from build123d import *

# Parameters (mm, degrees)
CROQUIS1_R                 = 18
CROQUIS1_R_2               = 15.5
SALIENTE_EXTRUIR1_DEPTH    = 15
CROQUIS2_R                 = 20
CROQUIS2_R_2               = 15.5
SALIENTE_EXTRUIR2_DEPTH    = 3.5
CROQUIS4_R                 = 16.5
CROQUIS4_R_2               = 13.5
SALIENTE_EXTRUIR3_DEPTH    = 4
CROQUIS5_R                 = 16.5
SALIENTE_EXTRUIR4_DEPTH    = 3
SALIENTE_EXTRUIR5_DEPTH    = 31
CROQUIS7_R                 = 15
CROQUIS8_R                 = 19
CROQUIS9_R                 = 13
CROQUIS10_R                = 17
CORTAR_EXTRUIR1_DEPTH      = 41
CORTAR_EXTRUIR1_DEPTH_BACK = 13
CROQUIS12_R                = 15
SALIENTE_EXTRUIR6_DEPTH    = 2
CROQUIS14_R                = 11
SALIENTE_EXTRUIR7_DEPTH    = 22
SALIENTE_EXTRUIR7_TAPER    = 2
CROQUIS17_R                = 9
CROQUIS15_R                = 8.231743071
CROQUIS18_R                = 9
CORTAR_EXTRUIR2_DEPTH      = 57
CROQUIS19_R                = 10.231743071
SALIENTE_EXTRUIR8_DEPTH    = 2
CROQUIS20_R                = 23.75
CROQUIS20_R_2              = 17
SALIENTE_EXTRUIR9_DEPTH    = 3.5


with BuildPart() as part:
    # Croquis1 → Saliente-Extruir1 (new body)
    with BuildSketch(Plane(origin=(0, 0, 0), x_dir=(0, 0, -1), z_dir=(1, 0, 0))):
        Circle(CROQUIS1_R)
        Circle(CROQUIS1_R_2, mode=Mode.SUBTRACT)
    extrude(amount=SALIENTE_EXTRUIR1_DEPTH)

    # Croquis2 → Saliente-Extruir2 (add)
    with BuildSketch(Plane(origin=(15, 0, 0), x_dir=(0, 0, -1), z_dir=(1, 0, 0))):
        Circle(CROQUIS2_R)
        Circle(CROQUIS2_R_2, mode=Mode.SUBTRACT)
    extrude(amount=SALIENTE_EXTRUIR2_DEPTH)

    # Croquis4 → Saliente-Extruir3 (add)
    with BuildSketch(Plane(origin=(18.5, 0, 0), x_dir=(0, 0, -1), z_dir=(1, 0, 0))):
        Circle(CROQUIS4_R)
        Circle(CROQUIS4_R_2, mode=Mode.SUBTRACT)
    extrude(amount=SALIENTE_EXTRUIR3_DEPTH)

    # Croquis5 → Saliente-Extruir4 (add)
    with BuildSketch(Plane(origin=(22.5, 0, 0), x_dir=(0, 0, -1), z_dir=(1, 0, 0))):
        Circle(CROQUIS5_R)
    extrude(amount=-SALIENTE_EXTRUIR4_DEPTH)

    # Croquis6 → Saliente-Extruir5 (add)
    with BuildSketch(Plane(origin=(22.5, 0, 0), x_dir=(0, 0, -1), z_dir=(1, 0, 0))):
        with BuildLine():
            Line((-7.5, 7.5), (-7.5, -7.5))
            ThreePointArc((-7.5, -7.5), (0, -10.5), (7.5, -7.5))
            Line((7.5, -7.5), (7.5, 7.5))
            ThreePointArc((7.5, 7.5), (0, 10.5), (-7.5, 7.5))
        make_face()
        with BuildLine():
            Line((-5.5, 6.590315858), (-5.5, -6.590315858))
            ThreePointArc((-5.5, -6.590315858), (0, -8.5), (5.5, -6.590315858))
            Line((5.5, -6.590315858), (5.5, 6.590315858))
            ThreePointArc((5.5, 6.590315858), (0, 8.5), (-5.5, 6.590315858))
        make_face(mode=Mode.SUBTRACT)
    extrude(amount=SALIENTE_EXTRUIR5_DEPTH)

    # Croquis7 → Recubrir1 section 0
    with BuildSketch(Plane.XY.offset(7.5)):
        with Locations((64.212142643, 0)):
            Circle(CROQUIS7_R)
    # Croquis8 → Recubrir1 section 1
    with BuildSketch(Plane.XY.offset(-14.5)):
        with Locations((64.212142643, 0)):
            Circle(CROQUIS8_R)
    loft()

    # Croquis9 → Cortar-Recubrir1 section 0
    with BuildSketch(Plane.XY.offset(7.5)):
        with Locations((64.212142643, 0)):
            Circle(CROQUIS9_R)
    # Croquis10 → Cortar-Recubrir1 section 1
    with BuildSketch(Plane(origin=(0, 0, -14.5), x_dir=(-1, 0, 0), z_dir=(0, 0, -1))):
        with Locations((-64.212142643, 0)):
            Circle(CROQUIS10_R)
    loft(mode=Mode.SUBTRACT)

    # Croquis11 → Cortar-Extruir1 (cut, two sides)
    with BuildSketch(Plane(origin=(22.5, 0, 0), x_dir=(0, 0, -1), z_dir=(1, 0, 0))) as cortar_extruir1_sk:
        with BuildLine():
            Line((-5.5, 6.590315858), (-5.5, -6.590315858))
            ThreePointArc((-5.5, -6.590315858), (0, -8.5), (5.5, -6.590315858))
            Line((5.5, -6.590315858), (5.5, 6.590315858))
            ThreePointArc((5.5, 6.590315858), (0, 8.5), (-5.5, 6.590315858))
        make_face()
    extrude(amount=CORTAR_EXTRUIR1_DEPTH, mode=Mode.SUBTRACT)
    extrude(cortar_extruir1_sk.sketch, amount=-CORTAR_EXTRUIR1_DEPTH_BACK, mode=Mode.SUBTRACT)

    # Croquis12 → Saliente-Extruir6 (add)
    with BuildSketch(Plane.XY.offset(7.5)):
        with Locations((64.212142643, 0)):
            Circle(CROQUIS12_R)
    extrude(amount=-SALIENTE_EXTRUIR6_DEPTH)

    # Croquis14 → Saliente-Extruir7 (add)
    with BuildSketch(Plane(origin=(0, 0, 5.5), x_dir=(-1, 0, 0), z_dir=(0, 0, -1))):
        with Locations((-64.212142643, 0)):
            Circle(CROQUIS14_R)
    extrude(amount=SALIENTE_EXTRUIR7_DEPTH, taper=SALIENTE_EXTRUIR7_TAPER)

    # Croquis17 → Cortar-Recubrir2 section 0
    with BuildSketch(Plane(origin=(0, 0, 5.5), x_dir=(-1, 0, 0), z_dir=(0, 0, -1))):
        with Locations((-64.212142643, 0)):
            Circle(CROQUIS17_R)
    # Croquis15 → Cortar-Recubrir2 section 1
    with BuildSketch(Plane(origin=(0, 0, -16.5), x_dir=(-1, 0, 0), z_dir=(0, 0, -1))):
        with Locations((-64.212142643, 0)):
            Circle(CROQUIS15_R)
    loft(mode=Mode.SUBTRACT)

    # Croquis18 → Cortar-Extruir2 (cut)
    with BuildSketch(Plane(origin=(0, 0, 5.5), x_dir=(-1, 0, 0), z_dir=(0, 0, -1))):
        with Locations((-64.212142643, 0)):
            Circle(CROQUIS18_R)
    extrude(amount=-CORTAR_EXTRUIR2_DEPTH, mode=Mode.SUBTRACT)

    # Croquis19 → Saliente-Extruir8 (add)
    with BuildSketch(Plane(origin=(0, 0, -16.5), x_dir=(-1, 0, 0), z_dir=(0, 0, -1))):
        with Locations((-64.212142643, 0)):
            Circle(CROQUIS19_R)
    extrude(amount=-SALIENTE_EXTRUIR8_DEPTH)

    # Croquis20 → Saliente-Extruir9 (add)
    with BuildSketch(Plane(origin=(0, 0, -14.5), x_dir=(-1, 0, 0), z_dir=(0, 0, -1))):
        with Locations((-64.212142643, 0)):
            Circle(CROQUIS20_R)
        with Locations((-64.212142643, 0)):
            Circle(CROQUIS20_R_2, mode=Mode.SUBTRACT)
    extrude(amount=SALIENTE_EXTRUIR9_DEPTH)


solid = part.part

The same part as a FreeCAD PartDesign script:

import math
import FreeCAD as App
import Part
import Sketcher
from FreeCAD import Vector

doc = App.newDocument("Part")
body = doc.addObject("PartDesign::Body", "Body")

sketch1 = body.newObject("Sketcher::SketchObject", "Sketch")
sketch1.AttachmentSupport = (doc.getObject("YZ_Plane"), [""])
sketch1.MapMode = "FlatFace"
sketch1.addGeometry(Part.Circle(Vector(0, 0, 0), Vector(0, 0, 1), 18), False)
sketch1.addGeometry(Part.Circle(Vector(0, 0, 0), Vector(0, 0, 1), 16), False)
sketch1.addConstraint(Sketcher.Constraint("Coincident", 0, 3, -1, 1))
sketch1.addConstraint(Sketcher.Constraint("Coincident", 1, 3, -1, 1))
sketch1.addConstraint(Sketcher.Constraint("Diameter", 0, 36.0))
sketch1.addConstraint(Sketcher.Constraint("Diameter", 1, 31.0))
pad1 = body.newObject("PartDesign::Pad", "Pad")
pad1.Profile = sketch1
pad1.Length = 15

sketch2 = body.newObject("Sketcher::SketchObject", "Sketch001")
sketch2.AttachmentSupport = (doc.getObject("YZ_Plane"), [""])
sketch2.MapMode = "FlatFace"
sketch2.AttachmentOffset = App.Placement(Vector(0, 0, 15), App.Rotation())
sketch2.addGeometry(Part.Circle(Vector(0, 0, 0), Vector(0, 0, 1), 20), False)
sketch2.addGeometry(Part.Circle(Vector(0, 0, 0), Vector(0, 0, 1), 16), False)
sketch2.addConstraint(Sketcher.Constraint("Coincident", 0, 3, -1, 1))
sketch2.addConstraint(Sketcher.Constraint("Coincident", 1, 3, -1, 1))
sketch2.addConstraint(Sketcher.Constraint("Diameter", 0, 40.0))
sketch2.addConstraint(Sketcher.Constraint("Diameter", 1, 31.0))
pad2 = body.newObject("PartDesign::Pad", "Pad001")
pad2.Profile = sketch2
pad2.Length = 3.5

sketch3 = body.newObject("Sketcher::SketchObject", "Sketch002")
sketch3.AttachmentSupport = (doc.getObject("YZ_Plane"), [""])
sketch3.MapMode = "FlatFace"
sketch3.AttachmentOffset = App.Placement(Vector(0, 0, 18.5), App.Rotation())
sketch3.addGeometry(Part.Circle(Vector(0, 0, 0), Vector(0, 0, 1), 16), False)
sketch3.addGeometry(Part.Circle(Vector(0, 0, 0), Vector(0, 0, 1), 14), False)
sketch3.addConstraint(Sketcher.Constraint("Coincident", 0, 3, -1, 1))
sketch3.addConstraint(Sketcher.Constraint("Coincident", 1, 3, -1, 1))
sketch3.addConstraint(Sketcher.Constraint("Diameter", 0, 33.0))
sketch3.addConstraint(Sketcher.Constraint("Diameter", 1, 27.0))
pad3 = body.newObject("PartDesign::Pad", "Pad002")
pad3.Profile = sketch3
pad3.Length = 4

sketch4 = body.newObject("Sketcher::SketchObject", "Sketch003")
sketch4.AttachmentSupport = (doc.getObject("YZ_Plane"), [""])
sketch4.MapMode = "FlatFace"
sketch4.AttachmentOffset = App.Placement(Vector(0, 0, 22.5), App.Rotation())
sketch4.addGeometry(Part.Circle(Vector(0, 0, 0), Vector(0, 0, 1), 16), False)
sketch4.addConstraint(Sketcher.Constraint("Coincident", 0, 3, -1, 1))
sketch4.addConstraint(Sketcher.Constraint("Diameter", 0, 33.0))
pad4 = body.newObject("PartDesign::Pad", "Pad003")
pad4.Profile = sketch4
pad4.Length = 3
pad4.Reversed = True

sketch5 = body.newObject("Sketcher::SketchObject", "Sketch004")
sketch5.AttachmentSupport = (doc.getObject("YZ_Plane"), [""])
sketch5.MapMode = "FlatFace"
sketch5.AttachmentOffset = App.Placement(Vector(0, 0, 22.5), App.Rotation())
sketch5.addGeometry(Part.LineSegment(Vector(8, 8, 0), Vector(-8, 8, 0)), False)
sketch5.addGeometry(Part.ArcOfCircle(Part.Circle(Vector(0, 0, 0), Vector(0, 0, 1), 11), math.radians(136), math.radians(224)), False)
sketch5.addGeometry(Part.LineSegment(Vector(-8, -8, 0), Vector(8, -8, 0)), False)
sketch5.addGeometry(Part.ArcOfCircle(Part.Circle(Vector(0, 0, 0), Vector(0, 0, 1), 11), math.radians(-44), math.radians(44)), False)
sketch5.addGeometry(Part.LineSegment(Vector(-7, 6, 0), Vector(7, 6, 0)), False)
sketch5.addGeometry(Part.ArcOfCircle(Part.Circle(Vector(0, 0, 0), Vector(0, 0, 1), 9), math.radians(-38), math.radians(38)), False)
sketch5.addGeometry(Part.LineSegment(Vector(7, -6, 0), Vector(-7, -6, 0)), False)
sketch5.addGeometry(Part.ArcOfCircle(Part.Circle(Vector(0, 0, 0), Vector(0, 0, 1), 9), math.radians(142), math.radians(218)), False)
sketch5.addConstraint(Sketcher.Constraint("Coincident", 0, 2, 1, 1))
sketch5.addConstraint(Sketcher.Constraint("Coincident", 1, 2, 2, 1))
sketch5.addConstraint(Sketcher.Constraint("Coincident", 2, 2, 3, 1))
sketch5.addConstraint(Sketcher.Constraint("Coincident", 3, 2, 0, 1))
sketch5.addConstraint(Sketcher.Constraint("Coincident", 4, 2, 5, 2))
sketch5.addConstraint(Sketcher.Constraint("Coincident", 5, 1, 6, 1))
sketch5.addConstraint(Sketcher.Constraint("Coincident", 6, 2, 7, 2))
sketch5.addConstraint(Sketcher.Constraint("Coincident", 7, 1, 4, 1))
sketch5.addConstraint(Sketcher.Constraint("Horizontal", 0))
sketch5.addConstraint(Sketcher.Constraint("Horizontal", 2))
sketch5.addConstraint(Sketcher.Constraint("Horizontal", 4))
sketch5.addConstraint(Sketcher.Constraint("Horizontal", 6))
sketch5.addConstraint(Sketcher.Constraint("Coincident", 5, 3, 3, 3))
sketch5.addConstraint(Sketcher.Constraint("Coincident", 7, 3, 1, 3))
sketch5.addConstraint(Sketcher.Constraint("Equal", 1, 3))
sketch5.addConstraint(Sketcher.Constraint("Equal", 5, 7))
sketch5.addConstraint(Sketcher.Constraint("Symmetric", 1, 3, 3, 3, -1, 1))
sketch5.addConstraint(Sketcher.Constraint("Symmetric", 0, 2, 1, 2, -1))
sketch5.addConstraint(Sketcher.Constraint("Vertical", 4, 2, 5, 1))
sketch5.addConstraint(Sketcher.Constraint("DistanceX", 0, 2, 0, 1, 15.0))
sketch5.addConstraint(Sketcher.Constraint("Radius", 1, 10.875))
sketch5.addConstraint(Sketcher.Constraint("Radius", 5, 8.875))
sketch5.addConstraint(Sketcher.Constraint("DistanceY", 1, 2, 0, 2, 15.0))
sketch5.addConstraint(Sketcher.Constraint("DistanceY", 4, 2, 3, 2, 2.0))
pad5 = body.newObject("PartDesign::Pad", "Pad004")
pad5.Profile = sketch5
pad5.Length = 31

sketch6 = body.newObject("Sketcher::SketchObject", "Sketch005")
sketch6.AttachmentSupport = (doc.getObject("XY_Plane"), [""])
sketch6.MapMode = "FlatFace"
sketch6.AttachmentOffset = App.Placement(Vector(0, 0, 7.5), App.Rotation())
sketch6.addGeometry(Part.Circle(Vector(64, 0, 0), Vector(0, 0, 1), 15), False)
sketch6.addConstraint(Sketcher.Constraint("PointOnObject", 0, 3, -1))
sketch6.addConstraint(Sketcher.Constraint("Diameter", 0, 30.0))
sketch6.addConstraint(Sketcher.Constraint("DistanceX", -1, 1, 0, 3, 64.212143))

sketch7 = body.newObject("Sketcher::SketchObject", "Sketch006")
sketch7.AttachmentSupport = (doc.getObject("XY_Plane"), [""])
sketch7.MapMode = "FlatFace"
sketch7.AttachmentOffset = App.Placement(Vector(0, 0, -14.5), App.Rotation())
sketch7.addGeometry(Part.Circle(Vector(64, 0, 0), Vector(0, 0, 1), 19), False)
sketch7.addConstraint(Sketcher.Constraint("PointOnObject", 0, 3, -1))
sketch7.addConstraint(Sketcher.Constraint("Diameter", 0, 38.0))
sketch7.addConstraint(Sketcher.Constraint("DistanceX", -1, 1, 0, 3, 64.212143))

additiveloft = body.newObject("PartDesign::AdditiveLoft", "AdditiveLoft")
additiveloft.Profile = sketch6
additiveloft.Sections = [sketch7]

sketch8 = body.newObject("Sketcher::SketchObject", "Sketch007")
sketch8.AttachmentSupport = (doc.getObject("XY_Plane"), [""])
sketch8.MapMode = "FlatFace"
sketch8.AttachmentOffset = App.Placement(Vector(0, 0, 7.5), App.Rotation())
sketch8.addGeometry(Part.Circle(Vector(64, 0, 0), Vector(0, 0, 1), 13), False)
sketch8.addConstraint(Sketcher.Constraint("PointOnObject", 0, 3, -1))
sketch8.addConstraint(Sketcher.Constraint("Diameter", 0, 26.0))
sketch8.addConstraint(Sketcher.Constraint("DistanceX", -1, 1, 0, 3, 64.212143))

sketch9 = body.newObject("Sketcher::SketchObject", "Sketch008")
sketch9.AttachmentSupport = (doc.getObject("XY_Plane"), [""])
sketch9.MapMode = "FlatFace"
sketch9.AttachmentOffset = App.Placement(Vector(0, 0, -14.5), App.Rotation())
sketch9.addGeometry(Part.Circle(Vector(64, 0, 0), Vector(0, 0, 1), 17), False)
sketch9.addConstraint(Sketcher.Constraint("PointOnObject", 0, 3, -1))
sketch9.addConstraint(Sketcher.Constraint("Diameter", 0, 34.0))
sketch9.addConstraint(Sketcher.Constraint("DistanceX", -1, 1, 0, 3, 64.212143))

subtractiveloft = body.newObject("PartDesign::SubtractiveLoft", "SubtractiveLoft")
subtractiveloft.Profile = sketch8
subtractiveloft.Sections = [sketch9]

sketch10 = body.newObject("Sketcher::SketchObject", "Sketch009")
sketch10.AttachmentSupport = (doc.getObject("YZ_Plane"), [""])
sketch10.MapMode = "FlatFace"
sketch10.AttachmentOffset = App.Placement(Vector(0, 0, 22.5), App.Rotation())
sketch10.addGeometry(Part.LineSegment(Vector(7, 6, 0), Vector(-7, 6, 0)), False)
sketch10.addGeometry(Part.ArcOfCircle(Part.Circle(Vector(0, 0, 0), Vector(0, 0, 1), 9), math.radians(142), math.radians(218)), False)
sketch10.addGeometry(Part.LineSegment(Vector(-7, -6, 0), Vector(7, -6, 0)), False)
sketch10.addGeometry(Part.ArcOfCircle(Part.Circle(Vector(0, 0, 0), Vector(0, 0, 1), 9), math.radians(-38), math.radians(38)), False)
sketch10.addConstraint(Sketcher.Constraint("Coincident", 0, 2, 1, 1))
sketch10.addConstraint(Sketcher.Constraint("Coincident", 1, 2, 2, 1))
sketch10.addConstraint(Sketcher.Constraint("Coincident", 2, 2, 3, 1))
sketch10.addConstraint(Sketcher.Constraint("Coincident", 3, 2, 0, 1))
sketch10.addConstraint(Sketcher.Constraint("Horizontal", 0))
sketch10.addConstraint(Sketcher.Constraint("Horizontal", 2))
sketch10.addConstraint(Sketcher.Constraint("Equal", 1, 3))
sketch10.addConstraint(Sketcher.Constraint("Symmetric", 1, 3, 3, 3, -1, 1))
sketch10.addConstraint(Sketcher.Constraint("Symmetric", 0, 2, 1, 2, -1))
sketch10.addConstraint(Sketcher.Constraint("Radius", 1, 8.875))
sketch10.addConstraint(Sketcher.Constraint("DistanceY", 1, 2, 0, 2, 11.0))
sketch10.addConstraint(Sketcher.Constraint("DistanceX", 3, 3, 1, 3, 0.75))
pocket1 = body.newObject("PartDesign::Pocket", "Pocket")
pocket1.Profile = sketch10
pocket1.Type = "TwoLengths"
pocket1.Length = 41
pocket1.Length2 = 13
pocket1.Reversed = True

sketch11 = body.newObject("Sketcher::SketchObject", "Sketch010")
sketch11.AttachmentSupport = (doc.getObject("XY_Plane"), [""])
sketch11.MapMode = "FlatFace"
sketch11.AttachmentOffset = App.Placement(Vector(0, 0, 7.5), App.Rotation())
sketch11.addGeometry(Part.Circle(Vector(64, 0, 0), Vector(0, 0, 1), 15), False)
sketch11.addConstraint(Sketcher.Constraint("PointOnObject", 0, 3, -1))
sketch11.addConstraint(Sketcher.Constraint("Diameter", 0, 30.0))
sketch11.addConstraint(Sketcher.Constraint("DistanceX", -1, 1, 0, 3, 64.212143))
pad6 = body.newObject("PartDesign::Pad", "Pad005")
pad6.Profile = sketch11
pad6.Length = 2
pad6.Reversed = True

sketch12 = body.newObject("Sketcher::SketchObject", "Sketch011")
sketch12.AttachmentSupport = (doc.getObject("XY_Plane"), [""])
sketch12.MapMode = "FlatFace"
sketch12.AttachmentOffset = App.Placement(Vector(0, 0, 5.5), App.Rotation())
sketch12.addGeometry(Part.Circle(Vector(64, 0, 0), Vector(0, 0, 1), 11), False)
sketch12.addConstraint(Sketcher.Constraint("PointOnObject", 0, 3, -1))
sketch12.addConstraint(Sketcher.Constraint("Diameter", 0, 22.0))
sketch12.addConstraint(Sketcher.Constraint("DistanceX", -1, 1, 0, 3, 64.212143))
pad7 = body.newObject("PartDesign::Pad", "Pad006")
pad7.Profile = sketch12
pad7.Length = 22
pad7.Reversed = True
pad7.TaperAngle = -2

sketch13 = body.newObject("Sketcher::SketchObject", "Sketch012")
sketch13.AttachmentSupport = (doc.getObject("XY_Plane"), [""])
sketch13.MapMode = "FlatFace"
sketch13.AttachmentOffset = App.Placement(Vector(0, 0, 5.5), App.Rotation())
sketch13.addGeometry(Part.Circle(Vector(64, 0, 0), Vector(0, 0, 1), 9), False)
sketch13.addConstraint(Sketcher.Constraint("PointOnObject", 0, 3, -1))
sketch13.addConstraint(Sketcher.Constraint("Diameter", 0, 18.0))
sketch13.addConstraint(Sketcher.Constraint("DistanceX", -1, 1, 0, 3, 64.212143))

sketch14 = body.newObject("Sketcher::SketchObject", "Sketch013")
sketch14.AttachmentSupport = (doc.getObject("XY_Plane"), [""])
sketch14.MapMode = "FlatFace"
sketch14.AttachmentOffset = App.Placement(Vector(0, 0, -16.5), App.Rotation())
sketch14.addGeometry(Part.Circle(Vector(64, 0, 0), Vector(0, 0, 1), 8), False)
sketch14.addConstraint(Sketcher.Constraint("PointOnObject", 0, 3, -1))
sketch14.addConstraint(Sketcher.Constraint("Diameter", 0, 16.463486))
sketch14.addConstraint(Sketcher.Constraint("DistanceX", -1, 1, 0, 3, 64.212143))

subtractiveloft2 = body.newObject("PartDesign::SubtractiveLoft", "SubtractiveLoft001")
subtractiveloft2.Profile = sketch13
subtractiveloft2.Sections = [sketch14]

sketch15 = body.newObject("Sketcher::SketchObject", "Sketch014")
sketch15.AttachmentSupport = (doc.getObject("XY_Plane"), [""])
sketch15.MapMode = "FlatFace"
sketch15.AttachmentOffset = App.Placement(Vector(0, 0, 5.5), App.Rotation())
sketch15.addGeometry(Part.Circle(Vector(64, 0, 0), Vector(0, 0, 1), 9), False)
sketch15.addConstraint(Sketcher.Constraint("PointOnObject", 0, 3, -1))
sketch15.addConstraint(Sketcher.Constraint("Diameter", 0, 18.0))
sketch15.addConstraint(Sketcher.Constraint("DistanceX", -1, 1, 0, 3, 64.212143))
pocket2 = body.newObject("PartDesign::Pocket", "Pocket001")
pocket2.Profile = sketch15
pocket2.Length = 57
pocket2.Reversed = True

sketch16 = body.newObject("Sketcher::SketchObject", "Sketch015")
sketch16.AttachmentSupport = (doc.getObject("XY_Plane"), [""])
sketch16.MapMode = "FlatFace"
sketch16.AttachmentOffset = App.Placement(Vector(0, 0, -16.5), App.Rotation())
sketch16.addGeometry(Part.Circle(Vector(64, 0, 0), Vector(0, 0, 1), 10), False)
sketch16.addConstraint(Sketcher.Constraint("PointOnObject", 0, 3, -1))
sketch16.addConstraint(Sketcher.Constraint("Diameter", 0, 20.463486))
sketch16.addConstraint(Sketcher.Constraint("DistanceX", -1, 1, 0, 3, 64.212143))
pad8 = body.newObject("PartDesign::Pad", "Pad007")
pad8.Profile = sketch16
pad8.Length = 2

sketch17 = body.newObject("Sketcher::SketchObject", "Sketch016")
sketch17.AttachmentSupport = (doc.getObject("XY_Plane"), [""])
sketch17.MapMode = "FlatFace"
sketch17.AttachmentOffset = App.Placement(Vector(0, 0, -14.5), App.Rotation())
sketch17.addGeometry(Part.Circle(Vector(64, 0, 0), Vector(0, 0, 1), 24), False)
sketch17.addGeometry(Part.Circle(Vector(64, 0, 0), Vector(0, 0, 1), 17), False)
sketch17.addConstraint(Sketcher.Constraint("Coincident", 1, 3, 0, 3))
sketch17.addConstraint(Sketcher.Constraint("PointOnObject", 0, 3, -1))
sketch17.addConstraint(Sketcher.Constraint("Diameter", 1, 34.0))
sketch17.addConstraint(Sketcher.Constraint("Diameter", 0, 47.5))
sketch17.addConstraint(Sketcher.Constraint("DistanceX", -1, 1, 0, 3, 64.212143))
pad9 = body.newObject("PartDesign::Pad", "Pad008")
pad9.Profile = sketch17
pad9.Length = 3.5
pad9.Reversed = True

doc.recompute()
